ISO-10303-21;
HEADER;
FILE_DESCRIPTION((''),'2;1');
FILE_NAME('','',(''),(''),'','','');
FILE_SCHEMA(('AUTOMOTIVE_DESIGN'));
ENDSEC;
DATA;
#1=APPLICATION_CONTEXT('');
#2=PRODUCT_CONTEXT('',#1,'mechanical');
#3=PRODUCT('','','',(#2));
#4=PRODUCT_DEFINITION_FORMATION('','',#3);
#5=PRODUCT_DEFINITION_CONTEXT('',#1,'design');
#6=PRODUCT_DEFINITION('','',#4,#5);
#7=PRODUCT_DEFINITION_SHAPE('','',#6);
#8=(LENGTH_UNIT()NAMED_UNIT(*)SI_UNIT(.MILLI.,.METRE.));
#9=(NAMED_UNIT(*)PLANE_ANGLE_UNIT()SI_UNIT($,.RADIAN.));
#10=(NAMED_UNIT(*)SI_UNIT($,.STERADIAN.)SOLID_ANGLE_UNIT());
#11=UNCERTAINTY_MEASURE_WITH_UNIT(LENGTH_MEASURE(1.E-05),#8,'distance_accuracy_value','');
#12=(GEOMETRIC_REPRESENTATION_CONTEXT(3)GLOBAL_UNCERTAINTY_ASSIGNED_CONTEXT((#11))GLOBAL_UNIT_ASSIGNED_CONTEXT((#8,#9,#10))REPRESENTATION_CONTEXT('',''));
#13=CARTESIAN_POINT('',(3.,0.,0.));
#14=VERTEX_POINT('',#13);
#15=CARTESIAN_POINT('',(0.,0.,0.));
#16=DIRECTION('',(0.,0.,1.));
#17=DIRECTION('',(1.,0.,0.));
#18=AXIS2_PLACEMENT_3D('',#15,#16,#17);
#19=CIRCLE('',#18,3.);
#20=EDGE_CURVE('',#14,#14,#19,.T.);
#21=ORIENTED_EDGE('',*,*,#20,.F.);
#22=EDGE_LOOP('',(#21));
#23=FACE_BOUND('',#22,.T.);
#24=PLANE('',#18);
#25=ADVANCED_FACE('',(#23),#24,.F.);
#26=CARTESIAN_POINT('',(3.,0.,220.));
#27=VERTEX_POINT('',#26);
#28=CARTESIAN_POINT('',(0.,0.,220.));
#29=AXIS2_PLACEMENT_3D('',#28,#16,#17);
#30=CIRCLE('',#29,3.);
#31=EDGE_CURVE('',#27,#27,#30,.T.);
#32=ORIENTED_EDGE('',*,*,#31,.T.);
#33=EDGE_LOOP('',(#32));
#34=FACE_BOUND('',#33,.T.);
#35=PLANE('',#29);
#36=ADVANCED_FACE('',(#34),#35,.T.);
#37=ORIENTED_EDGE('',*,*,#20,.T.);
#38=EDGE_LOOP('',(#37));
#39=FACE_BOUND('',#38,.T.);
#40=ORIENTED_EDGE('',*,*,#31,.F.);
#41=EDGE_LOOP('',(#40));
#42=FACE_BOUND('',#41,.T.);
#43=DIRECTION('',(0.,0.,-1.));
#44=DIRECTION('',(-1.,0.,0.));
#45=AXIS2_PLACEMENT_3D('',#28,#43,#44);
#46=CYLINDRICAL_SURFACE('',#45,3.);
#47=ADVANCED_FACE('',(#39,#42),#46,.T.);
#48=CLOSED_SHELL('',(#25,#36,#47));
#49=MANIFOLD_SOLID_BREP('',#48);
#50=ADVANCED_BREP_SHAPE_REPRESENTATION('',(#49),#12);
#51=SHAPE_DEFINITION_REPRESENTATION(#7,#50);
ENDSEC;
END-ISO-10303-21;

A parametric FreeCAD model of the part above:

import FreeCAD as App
import Part
import Sketcher

V = App.Vector
Q = App.Units.Quantity

doc = App.newDocument("Part")
body = doc.addObject("PartDesign::Body", "Body")

# Sketch on XY plane
sketch1 = body.newObject("Sketcher::SketchObject", "Sketch")
sketch1.AttachmentSupport = (doc.getObject("XY_Plane"), [""])
sketch1.MapMode = "FlatFace"
sketch1.addGeometry(Part.Circle(V(0, 0, 0), V(0, 0, 1), 3), False)
sketch1.addConstraint(Sketcher.Constraint("Coincident", 0, 3, -1, 1))
sketch1.addConstraint(Sketcher.Constraint("Diameter", 0, Q("6 mm")))
pad1 = body.newObject("PartDesign::Pad", "Pad")
pad1.Profile = sketch1
pad1.Length = 220

doc.recompute()
